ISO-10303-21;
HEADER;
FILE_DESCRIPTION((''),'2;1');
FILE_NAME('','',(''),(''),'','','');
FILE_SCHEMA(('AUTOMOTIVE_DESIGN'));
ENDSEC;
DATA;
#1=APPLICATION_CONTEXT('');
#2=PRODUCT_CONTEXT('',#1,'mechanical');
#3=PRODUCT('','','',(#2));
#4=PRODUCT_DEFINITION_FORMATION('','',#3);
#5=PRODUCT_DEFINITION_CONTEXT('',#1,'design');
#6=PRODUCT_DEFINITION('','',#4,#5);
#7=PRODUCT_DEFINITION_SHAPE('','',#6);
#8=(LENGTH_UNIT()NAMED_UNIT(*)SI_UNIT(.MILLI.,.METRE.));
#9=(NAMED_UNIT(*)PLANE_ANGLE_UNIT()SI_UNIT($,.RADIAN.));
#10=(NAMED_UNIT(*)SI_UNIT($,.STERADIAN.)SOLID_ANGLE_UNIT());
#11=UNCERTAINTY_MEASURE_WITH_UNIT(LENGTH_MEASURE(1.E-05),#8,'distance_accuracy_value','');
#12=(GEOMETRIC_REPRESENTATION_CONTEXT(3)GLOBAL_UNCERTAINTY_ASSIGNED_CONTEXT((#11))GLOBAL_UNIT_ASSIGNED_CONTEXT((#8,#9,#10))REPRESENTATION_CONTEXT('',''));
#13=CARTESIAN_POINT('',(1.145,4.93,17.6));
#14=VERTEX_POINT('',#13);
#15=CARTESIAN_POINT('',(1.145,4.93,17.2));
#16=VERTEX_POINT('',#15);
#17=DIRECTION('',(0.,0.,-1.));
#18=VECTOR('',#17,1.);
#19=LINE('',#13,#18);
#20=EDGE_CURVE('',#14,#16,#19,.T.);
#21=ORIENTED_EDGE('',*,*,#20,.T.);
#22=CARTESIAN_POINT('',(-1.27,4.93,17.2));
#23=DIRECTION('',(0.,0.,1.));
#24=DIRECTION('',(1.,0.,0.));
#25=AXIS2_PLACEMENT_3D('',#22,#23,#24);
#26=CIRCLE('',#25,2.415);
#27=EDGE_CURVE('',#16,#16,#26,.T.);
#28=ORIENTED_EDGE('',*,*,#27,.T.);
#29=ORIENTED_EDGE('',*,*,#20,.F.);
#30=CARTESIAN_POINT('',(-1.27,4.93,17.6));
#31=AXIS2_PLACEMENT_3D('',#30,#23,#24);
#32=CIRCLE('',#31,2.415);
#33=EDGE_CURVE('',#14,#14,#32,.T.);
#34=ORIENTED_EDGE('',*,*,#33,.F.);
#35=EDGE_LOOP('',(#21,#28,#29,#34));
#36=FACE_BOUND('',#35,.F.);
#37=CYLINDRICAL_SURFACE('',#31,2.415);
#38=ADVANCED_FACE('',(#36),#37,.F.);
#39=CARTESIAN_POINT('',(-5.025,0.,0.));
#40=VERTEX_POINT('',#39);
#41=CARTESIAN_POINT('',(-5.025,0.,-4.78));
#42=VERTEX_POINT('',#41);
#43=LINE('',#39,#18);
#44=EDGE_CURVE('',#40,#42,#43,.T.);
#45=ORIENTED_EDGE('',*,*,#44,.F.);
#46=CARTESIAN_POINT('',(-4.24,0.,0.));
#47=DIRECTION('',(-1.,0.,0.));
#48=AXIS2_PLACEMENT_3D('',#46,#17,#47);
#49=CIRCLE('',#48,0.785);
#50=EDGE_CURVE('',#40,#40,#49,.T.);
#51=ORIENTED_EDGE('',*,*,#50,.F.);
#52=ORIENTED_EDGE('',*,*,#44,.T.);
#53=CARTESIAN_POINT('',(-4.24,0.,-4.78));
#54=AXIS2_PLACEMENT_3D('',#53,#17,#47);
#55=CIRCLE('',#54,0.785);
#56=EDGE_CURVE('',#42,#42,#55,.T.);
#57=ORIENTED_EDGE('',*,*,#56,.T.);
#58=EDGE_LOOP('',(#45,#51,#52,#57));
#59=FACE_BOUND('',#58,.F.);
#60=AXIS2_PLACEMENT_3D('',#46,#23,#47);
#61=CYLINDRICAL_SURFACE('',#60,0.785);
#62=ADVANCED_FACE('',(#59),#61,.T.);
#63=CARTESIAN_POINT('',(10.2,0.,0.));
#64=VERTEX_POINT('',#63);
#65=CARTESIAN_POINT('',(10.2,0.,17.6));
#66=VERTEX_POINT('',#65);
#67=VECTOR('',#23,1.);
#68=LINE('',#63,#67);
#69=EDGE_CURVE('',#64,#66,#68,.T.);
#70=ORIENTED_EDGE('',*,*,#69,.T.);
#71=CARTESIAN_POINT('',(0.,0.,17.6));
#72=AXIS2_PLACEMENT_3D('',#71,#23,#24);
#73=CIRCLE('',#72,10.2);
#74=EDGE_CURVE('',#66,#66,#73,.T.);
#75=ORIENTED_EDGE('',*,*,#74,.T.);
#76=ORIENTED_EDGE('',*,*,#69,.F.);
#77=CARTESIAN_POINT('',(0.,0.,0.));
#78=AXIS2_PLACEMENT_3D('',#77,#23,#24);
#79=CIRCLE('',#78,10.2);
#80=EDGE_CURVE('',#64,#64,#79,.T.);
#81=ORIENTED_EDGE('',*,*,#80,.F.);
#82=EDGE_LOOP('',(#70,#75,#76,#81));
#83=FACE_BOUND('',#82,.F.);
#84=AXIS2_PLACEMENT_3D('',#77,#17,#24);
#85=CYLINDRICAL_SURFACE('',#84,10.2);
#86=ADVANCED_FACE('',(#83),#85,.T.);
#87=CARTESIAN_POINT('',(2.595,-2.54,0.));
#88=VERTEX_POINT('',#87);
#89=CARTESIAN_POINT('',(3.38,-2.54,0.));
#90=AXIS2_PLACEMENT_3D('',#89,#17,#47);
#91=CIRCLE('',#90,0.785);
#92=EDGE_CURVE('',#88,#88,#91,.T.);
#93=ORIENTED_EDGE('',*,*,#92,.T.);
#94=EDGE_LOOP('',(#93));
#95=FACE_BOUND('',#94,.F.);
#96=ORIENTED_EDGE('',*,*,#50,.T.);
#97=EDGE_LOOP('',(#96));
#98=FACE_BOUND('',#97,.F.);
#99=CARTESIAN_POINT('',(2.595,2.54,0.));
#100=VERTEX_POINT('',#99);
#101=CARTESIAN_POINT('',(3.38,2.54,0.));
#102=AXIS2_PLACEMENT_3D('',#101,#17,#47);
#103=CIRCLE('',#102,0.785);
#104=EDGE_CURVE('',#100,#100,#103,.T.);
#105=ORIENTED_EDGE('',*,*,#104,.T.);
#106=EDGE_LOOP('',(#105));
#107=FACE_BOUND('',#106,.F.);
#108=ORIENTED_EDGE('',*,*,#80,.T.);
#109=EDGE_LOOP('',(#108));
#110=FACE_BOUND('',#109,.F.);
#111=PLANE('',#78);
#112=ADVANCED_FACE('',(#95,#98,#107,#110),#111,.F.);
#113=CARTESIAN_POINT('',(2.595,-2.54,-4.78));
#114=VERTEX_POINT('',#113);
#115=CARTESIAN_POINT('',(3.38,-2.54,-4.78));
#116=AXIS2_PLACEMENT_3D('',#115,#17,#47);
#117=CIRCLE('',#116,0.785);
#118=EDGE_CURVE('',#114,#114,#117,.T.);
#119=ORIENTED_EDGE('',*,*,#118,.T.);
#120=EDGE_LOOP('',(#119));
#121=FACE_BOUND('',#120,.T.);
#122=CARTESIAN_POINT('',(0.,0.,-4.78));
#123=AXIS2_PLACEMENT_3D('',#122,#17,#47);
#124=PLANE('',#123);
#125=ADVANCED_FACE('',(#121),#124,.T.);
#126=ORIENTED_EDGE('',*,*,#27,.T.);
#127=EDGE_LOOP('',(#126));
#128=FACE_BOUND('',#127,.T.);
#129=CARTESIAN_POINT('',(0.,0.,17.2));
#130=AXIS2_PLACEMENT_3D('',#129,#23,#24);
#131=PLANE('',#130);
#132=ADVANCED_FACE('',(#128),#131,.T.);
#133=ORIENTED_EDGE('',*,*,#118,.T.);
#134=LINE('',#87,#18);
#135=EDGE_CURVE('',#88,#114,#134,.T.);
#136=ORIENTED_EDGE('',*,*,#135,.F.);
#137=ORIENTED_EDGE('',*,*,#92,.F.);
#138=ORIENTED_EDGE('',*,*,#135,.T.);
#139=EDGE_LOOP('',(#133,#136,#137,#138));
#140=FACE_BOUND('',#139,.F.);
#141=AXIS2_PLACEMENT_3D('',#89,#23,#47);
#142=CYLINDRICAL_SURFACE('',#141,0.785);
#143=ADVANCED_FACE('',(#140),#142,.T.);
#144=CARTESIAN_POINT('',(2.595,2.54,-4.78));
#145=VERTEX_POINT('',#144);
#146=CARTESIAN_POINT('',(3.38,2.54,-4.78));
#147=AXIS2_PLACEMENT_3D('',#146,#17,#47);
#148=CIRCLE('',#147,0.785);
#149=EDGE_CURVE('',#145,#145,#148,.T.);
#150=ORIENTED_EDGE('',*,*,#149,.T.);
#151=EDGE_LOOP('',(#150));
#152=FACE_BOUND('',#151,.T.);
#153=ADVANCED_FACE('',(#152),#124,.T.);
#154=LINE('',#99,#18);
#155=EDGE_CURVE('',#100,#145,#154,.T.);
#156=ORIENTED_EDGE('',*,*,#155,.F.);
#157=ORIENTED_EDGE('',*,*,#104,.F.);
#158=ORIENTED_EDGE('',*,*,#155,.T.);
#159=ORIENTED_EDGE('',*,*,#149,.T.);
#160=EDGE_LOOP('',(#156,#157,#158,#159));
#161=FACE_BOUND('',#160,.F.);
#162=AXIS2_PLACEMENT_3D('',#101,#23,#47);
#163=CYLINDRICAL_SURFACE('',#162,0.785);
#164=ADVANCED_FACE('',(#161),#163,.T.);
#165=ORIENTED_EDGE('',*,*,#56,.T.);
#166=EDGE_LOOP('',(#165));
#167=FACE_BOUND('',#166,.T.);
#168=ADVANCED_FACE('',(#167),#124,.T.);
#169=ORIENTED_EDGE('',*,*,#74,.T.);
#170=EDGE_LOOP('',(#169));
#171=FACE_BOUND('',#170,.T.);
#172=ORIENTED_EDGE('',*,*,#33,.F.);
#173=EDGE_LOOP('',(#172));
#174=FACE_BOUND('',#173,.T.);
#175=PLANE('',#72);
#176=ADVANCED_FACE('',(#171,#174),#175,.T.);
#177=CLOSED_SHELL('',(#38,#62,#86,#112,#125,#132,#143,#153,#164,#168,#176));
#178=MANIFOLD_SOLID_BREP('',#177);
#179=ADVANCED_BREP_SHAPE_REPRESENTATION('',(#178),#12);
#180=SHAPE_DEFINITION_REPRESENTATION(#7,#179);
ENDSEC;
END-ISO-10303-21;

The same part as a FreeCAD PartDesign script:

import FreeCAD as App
import Part
import Sketcher

V = App.Vector

doc = App.newDocument("Part")
params = doc.addObject("Spreadsheet::Sheet", "Params")
for row, (alias, value) in enumerate([
    ("sketch1_diameter", "20.4 mm"),
    ("pad1_length", "17.6 mm"),
    ("sketch2_diameter", "4.83 mm"),
    ("pocket1_length", "0.4 mm"),
    ("sketch3_diameter", "1.57 mm"),
    ("pad2_length", "4.78 mm"),
], start=1):
    params.set(f"A{row}", alias)
    params.set(f"B{row}", "=" + value)
    params.setAlias(f"B{row}", alias)

body = doc.addObject("PartDesign::Body", "Body")

sketch1 = body.newObject("Sketcher::SketchObject", "Sketch")
sketch1.AttachmentSupport = (doc.getObject("XY_Plane"), [""])
sketch1.MapMode = "FlatFace"
sketch1.addGeometry(Part.Circle(V(0, 0, 0), V(0, 0, 1), 10), False)
sketch1.addConstraint(Sketcher.Constraint("Coincident", 0, 3, -1, 1))
sketch1.addConstraint(Sketcher.Constraint("Diameter", 0, 20.4))
sketch1.setExpression("Constraints[1]", "Params.sketch1_diameter")
pad1 = body.newObject("PartDesign::Pad", "Pad")
pad1.Profile = sketch1
pad1.setExpression("Length", "Params.pad1_length")

sketch2 = body.newObject("Sketcher::SketchObject", "Sketch001")
sketch2.AttachmentSupport = (doc.getObject("XY_Plane"), [""])
sketch2.MapMode = "FlatFace"
sketch2.AttachmentOffset = App.Placement(V(0, 0, 17.6), App.Rotation())
sketch2.addGeometry(Part.Circle(V(-1.3, 4.9, 0), V(0, 0, 1), 2.4), False)
sketch2.addConstraint(Sketcher.Constraint("Diameter", 0, 4.83))
sketch2.addConstraint(Sketcher.Constraint("DistanceX", 0, 3, -1, 1, 1.27))
sketch2.addConstraint(Sketcher.Constraint("DistanceY", -1, 1, 0, 3, 4.93))
sketch2.setExpression("Constraints[0]", "Params.sketch2_diameter")
pocket1 = body.newObject("PartDesign::Pocket", "Pocket")
pocket1.Profile = sketch2
pocket1.setExpression("Length", "Params.pocket1_length")

sketch3 = body.newObject("Sketcher::SketchObject", "Sketch002")
sketch3.AttachmentSupport = (doc.getObject("XY_Plane"), [""])
sketch3.MapMode = "FlatFace"
sketch3.addGeometry(Part.Circle(V(-4.2, 0, 0), V(0, 0, 1), 0.8), False)
sketch3.addGeometry(Part.Circle(V(3.4, 2.5, 0), V(0, 0, 1), 0.8), False)
sketch3.addGeometry(Part.Circle(V(3.4, -2.5, 0), V(0, 0, 1), 0.8), False)
sketch3.addConstraint(Sketcher.Constraint("Equal", 0, 1))
sketch3.addConstraint(Sketcher.Constraint("Equal", 1, 2))
sketch3.addConstraint(Sketcher.Constraint("Symmetric", 1, 3, 2, 3, -1))
sketch3.addConstraint(Sketcher.Constraint("PointOnObject", 0, 3, -1))
sketch3.addConstraint(Sketcher.Constraint("Diameter", 0, 1.57))
sketch3.addConstraint(Sketcher.Constraint("DistanceX", 0, 3, -1, 1, 4.24))
sketch3.addConstraint(Sketcher.Constraint("DistanceX", 0, 3, 1, 3, 7.62))
sketch3.addConstraint(Sketcher.Constraint("DistanceY", 2, 3, 1, 3, 5.08))
sketch3.setExpression("Constraints[4]", "Params.sketch3_diameter")
pad2 = body.newObject("PartDesign::Pad", "Pad001")
pad2.Profile = sketch3
pad2.setExpression("Length", "Params.pad2_length")
pad2.Reversed = True

doc.recompute()
